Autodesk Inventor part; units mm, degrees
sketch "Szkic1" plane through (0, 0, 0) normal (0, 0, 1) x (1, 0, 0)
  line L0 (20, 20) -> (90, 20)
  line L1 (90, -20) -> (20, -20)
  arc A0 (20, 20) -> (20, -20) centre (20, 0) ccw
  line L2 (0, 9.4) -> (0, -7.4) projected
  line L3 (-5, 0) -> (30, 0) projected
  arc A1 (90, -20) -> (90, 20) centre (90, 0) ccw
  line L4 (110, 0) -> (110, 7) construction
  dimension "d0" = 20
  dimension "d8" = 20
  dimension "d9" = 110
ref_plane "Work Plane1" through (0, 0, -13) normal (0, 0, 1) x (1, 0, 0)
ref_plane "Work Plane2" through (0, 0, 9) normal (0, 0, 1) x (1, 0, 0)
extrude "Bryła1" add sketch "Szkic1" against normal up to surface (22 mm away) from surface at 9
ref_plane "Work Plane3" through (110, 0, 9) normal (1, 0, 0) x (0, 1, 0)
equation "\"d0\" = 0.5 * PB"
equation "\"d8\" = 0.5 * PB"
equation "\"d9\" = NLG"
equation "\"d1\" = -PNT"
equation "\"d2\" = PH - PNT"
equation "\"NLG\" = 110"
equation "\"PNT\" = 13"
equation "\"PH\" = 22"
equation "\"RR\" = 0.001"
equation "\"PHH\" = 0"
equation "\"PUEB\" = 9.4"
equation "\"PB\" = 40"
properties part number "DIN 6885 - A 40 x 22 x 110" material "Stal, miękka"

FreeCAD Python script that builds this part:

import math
import FreeCAD as App
import Part
import Sketcher
from FreeCAD import Vector
Q = App.Units.Quantity

doc = App.newDocument("Part")
params = doc.addObject("Spreadsheet::Sheet", "Params")
for row, (alias, value) in enumerate([
    ("sketch1_radius", "20 mm"),
    ("sketch1_width", "70 mm"),
    ("pad1_length", "22 mm"),
], start=1):
    params.set(f"A{row}", alias)
    params.set(f"B{row}", "=" + value)
    params.setAlias(f"B{row}", alias)

body = doc.addObject("PartDesign::Body", "Body")

# Sketch on XY plane
sketch1 = body.newObject("Sketcher::SketchObject", "Sketch")
sketch1.AttachmentSupport = (doc.getObject("XY_Plane"), [""])
sketch1.MapMode = "FlatFace"
sketch1.AttachmentOffset = App.Placement(Vector(0, 0, 9), App.Rotation())
sketch1.addGeometry(Part.LineSegment(Vector(90, 20, 0), Vector(20, 20, 0)), False)
sketch1.addGeometry(Part.ArcOfCircle(Part.Circle(Vector(20, 0, 0), Vector(0, 0, 1), 20), math.radians(90), math.radians(270)), False)
sketch1.addGeometry(Part.LineSegment(Vector(20, -20, 0), Vector(90, -20, 0)), False)
sketch1.addGeometry(Part.ArcOfCircle(Part.Circle(Vector(90, 0, 0), Vector(0, 0, 1), 20), math.radians(-90), math.radians(90)), False)
sketch1.addConstraint(Sketcher.Constraint("Tangent", 0, 2, 1, 1))
sketch1.addConstraint(Sketcher.Constraint("Tangent", 1, 2, 2, 1))
sketch1.addConstraint(Sketcher.Constraint("Tangent", 2, 2, 3, 1))
sketch1.addConstraint(Sketcher.Constraint("Tangent", 3, 2, 0, 1))
sketch1.addConstraint(Sketcher.Constraint("Horizontal", 0))
sketch1.addConstraint(Sketcher.Constraint("Horizontal", 2))
sketch1.addConstraint(Sketcher.Constraint("PointOnObject", 1, 3, -1))
sketch1.addConstraint(Sketcher.Constraint("Radius", 1, Q("20 mm")))
sketch1.addConstraint(Sketcher.Constraint("DistanceX", -1, 1, 1, 3, Q("20 mm")))
sketch1.addConstraint(Sketcher.Constraint("DistanceX", 0, 2, 0, 1, Q("70 mm")))
sketch1.setExpression("Constraints[7]", "Params.sketch1_radius")
sketch1.setExpression("Constraints[9]", "Params.sketch1_width")
pad1 = body.newObject("PartDesign::Pad", "Pad")
pad1.Profile = sketch1
pad1.setExpression("Length", "Params.pad1_length")
pad1.Reversed = True

doc.recompute()
